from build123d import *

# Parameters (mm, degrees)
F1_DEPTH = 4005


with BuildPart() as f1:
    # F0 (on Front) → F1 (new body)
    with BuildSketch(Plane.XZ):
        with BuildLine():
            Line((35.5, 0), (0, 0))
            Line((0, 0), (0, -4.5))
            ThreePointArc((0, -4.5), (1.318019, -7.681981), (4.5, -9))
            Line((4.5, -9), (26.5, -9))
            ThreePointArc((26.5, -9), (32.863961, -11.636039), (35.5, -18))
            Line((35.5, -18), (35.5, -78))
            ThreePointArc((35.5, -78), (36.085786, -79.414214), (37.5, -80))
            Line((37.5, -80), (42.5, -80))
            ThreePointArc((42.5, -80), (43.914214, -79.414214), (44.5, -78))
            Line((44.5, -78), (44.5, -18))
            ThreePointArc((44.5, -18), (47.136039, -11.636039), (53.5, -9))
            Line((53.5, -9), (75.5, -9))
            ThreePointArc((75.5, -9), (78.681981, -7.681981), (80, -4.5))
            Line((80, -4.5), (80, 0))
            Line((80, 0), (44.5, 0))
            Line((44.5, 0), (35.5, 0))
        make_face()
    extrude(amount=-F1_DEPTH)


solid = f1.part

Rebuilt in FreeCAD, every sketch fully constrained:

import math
import FreeCAD as App
import Part
import Sketcher
from FreeCAD import Vector

doc = App.newDocument("Part")
body = doc.addObject("PartDesign::Body", "Body")

sketch1 = doc.addObject("Sketcher::SketchObject", "Sketch")
body.addObject(sketch1)
sketch1.AttachmentSupport = (doc.XZ_Plane, [""])
sketch1.MapMode = "FlatFace"
sketch1.addGeometry(Part.LineSegment(Vector(0, 0, 0), Vector(0, -4.5, 0)), False)
sketch1.addGeometry(Part.ArcOfCircle(Part.Circle(Vector(4.5, -4.5, 0), Vector(0, 0, 1), 4.5), math.radians(180), math.radians(270)), False)
sketch1.addGeometry(Part.LineSegment(Vector(4.5, -9, 0), Vector(26.5, -9, 0)), False)
sketch1.addGeometry(Part.ArcOfCircle(Part.Circle(Vector(26.5, -18, 0), Vector(0, 0, 1), 9), math.radians(0), math.radians(90)), False)
sketch1.addGeometry(Part.LineSegment(Vector(35.5, -18, 0), Vector(35.5, -78, 0)), False)
sketch1.addGeometry(Part.ArcOfCircle(Part.Circle(Vector(37.5, -78, 0), Vector(0, 0, 1), 2), math.radians(180), math.radians(270)), False)
sketch1.addGeometry(Part.LineSegment(Vector(37.5, -80, 0), Vector(42.5, -80, 0)), False)
sketch1.addGeometry(Part.ArcOfCircle(Part.Circle(Vector(42.5, -78, 0), Vector(0, 0, 1), 2), math.radians(-90), math.radians(0)), False)
sketch1.addGeometry(Part.LineSegment(Vector(44.5, -78, 0), Vector(44.5, -18, 0)), False)
sketch1.addGeometry(Part.ArcOfCircle(Part.Circle(Vector(53.5, -18, 0), Vector(0, 0, 1), 9), math.radians(90), math.radians(180)), False)
sketch1.addGeometry(Part.LineSegment(Vector(53.5, -9, 0), Vector(75.5, -9, 0)), False)
sketch1.addGeometry(Part.ArcOfCircle(Part.Circle(Vector(75.5, -4.5, 0), Vector(0, 0, 1), 4.5), math.radians(-90), math.radians(0)), False)
sketch1.addGeometry(Part.LineSegment(Vector(80, -4.5, 0), Vector(80, 0, 0)), False)
sketch1.addGeometry(Part.LineSegment(Vector(80, 0, 0), Vector(0, 0, 0)), False)
sketch1.addConstraint(Sketcher.Constraint("Tangent", 0, 2, 1, 1))
sketch1.addConstraint(Sketcher.Constraint("Tangent", 1, 2, 2, 1))
sketch1.addConstraint(Sketcher.Constraint("Tangent", 2, 2, 3, 2))
sketch1.addConstraint(Sketcher.Constraint("Tangent", 3, 1, 4, 1))
sketch1.addConstraint(Sketcher.Constraint("Tangent", 4, 2, 5, 1))
sketch1.addConstraint(Sketcher.Constraint("Tangent", 5, 2, 6, 1))
sketch1.addConstraint(Sketcher.Constraint("Tangent", 6, 2, 7, 1))
sketch1.addConstraint(Sketcher.Constraint("Tangent", 7, 2, 8, 1))
sketch1.addConstraint(Sketcher.Constraint("Tangent", 8, 2, 9, 2))
sketch1.addConstraint(Sketcher.Constraint("Tangent", 9, 1, 10, 1))
sketch1.addConstraint(Sketcher.Constraint("Tangent", 10, 2, 11, 1))
sketch1.addConstraint(Sketcher.Constraint("Tangent", 11, 2, 12, 1))
sketch1.addConstraint(Sketcher.Constraint("Coincident", 12, 2, 13, 1))
sketch1.addConstraint(Sketcher.Constraint("Coincident", 13, 2, 0, 1))
sketch1.addConstraint(Sketcher.Constraint("Vertical", 0))
sketch1.addConstraint(Sketcher.Constraint("Horizontal", 2))
sketch1.addConstraint(Sketcher.Constraint("Vertical", 4))
sketch1.addConstraint(Sketcher.Constraint("Horizontal", 6))
sketch1.addConstraint(Sketcher.Constraint("Vertical", 8))
sketch1.addConstraint(Sketcher.Constraint("Horizontal", 10))
sketch1.addConstraint(Sketcher.Constraint("Vertical", 12))
sketch1.addConstraint(Sketcher.Constraint("Horizontal", 13))
sketch1.addConstraint(Sketcher.Constraint("Coincident", 13, 2, -1, 1))
sketch1.addConstraint(Sketcher.Constraint("Equal", 5, 7))
sketch1.addConstraint(Sketcher.Constraint("Equal", 3, 9))
sketch1.addConstraint(Sketcher.Constraint("Equal", 1, 11))
sketch1.addConstraint(Sketcher.Constraint("Horizontal", 3, 3, 9, 3))
sketch1.addConstraint(Sketcher.Constraint("Equal", 2, 10))
sketch1.addConstraint(Sketcher.Constraint("Radius", 3, 9.0))
sketch1.addConstraint(Sketcher.Constraint("Radius", 5, 1.999999))
sketch1.addConstraint(Sketcher.Constraint("Radius", 1, 4.499998))
sketch1.addConstraint(Sketcher.Constraint("DistanceX", 2, 1, 2, 2, 22.0))
sketch1.addConstraint(Sketcher.Constraint("DistanceX", 6, 1, 6, 2, 5.0))
sketch1.addConstraint(Sketcher.Constraint("DistanceY", 4, 2, 4, 1, 60.0))
sketch1.addConstraint(Sketcher.Constraint("DistanceY", 0, 2, 0, 1, 4.5))
pad1 = doc.addObject("PartDesign::Pad", "Pad")
body.addObject(pad1)
pad1.Profile = sketch1
pad1.Length = 4005
pad1.Reversed = True

doc.recompute()
